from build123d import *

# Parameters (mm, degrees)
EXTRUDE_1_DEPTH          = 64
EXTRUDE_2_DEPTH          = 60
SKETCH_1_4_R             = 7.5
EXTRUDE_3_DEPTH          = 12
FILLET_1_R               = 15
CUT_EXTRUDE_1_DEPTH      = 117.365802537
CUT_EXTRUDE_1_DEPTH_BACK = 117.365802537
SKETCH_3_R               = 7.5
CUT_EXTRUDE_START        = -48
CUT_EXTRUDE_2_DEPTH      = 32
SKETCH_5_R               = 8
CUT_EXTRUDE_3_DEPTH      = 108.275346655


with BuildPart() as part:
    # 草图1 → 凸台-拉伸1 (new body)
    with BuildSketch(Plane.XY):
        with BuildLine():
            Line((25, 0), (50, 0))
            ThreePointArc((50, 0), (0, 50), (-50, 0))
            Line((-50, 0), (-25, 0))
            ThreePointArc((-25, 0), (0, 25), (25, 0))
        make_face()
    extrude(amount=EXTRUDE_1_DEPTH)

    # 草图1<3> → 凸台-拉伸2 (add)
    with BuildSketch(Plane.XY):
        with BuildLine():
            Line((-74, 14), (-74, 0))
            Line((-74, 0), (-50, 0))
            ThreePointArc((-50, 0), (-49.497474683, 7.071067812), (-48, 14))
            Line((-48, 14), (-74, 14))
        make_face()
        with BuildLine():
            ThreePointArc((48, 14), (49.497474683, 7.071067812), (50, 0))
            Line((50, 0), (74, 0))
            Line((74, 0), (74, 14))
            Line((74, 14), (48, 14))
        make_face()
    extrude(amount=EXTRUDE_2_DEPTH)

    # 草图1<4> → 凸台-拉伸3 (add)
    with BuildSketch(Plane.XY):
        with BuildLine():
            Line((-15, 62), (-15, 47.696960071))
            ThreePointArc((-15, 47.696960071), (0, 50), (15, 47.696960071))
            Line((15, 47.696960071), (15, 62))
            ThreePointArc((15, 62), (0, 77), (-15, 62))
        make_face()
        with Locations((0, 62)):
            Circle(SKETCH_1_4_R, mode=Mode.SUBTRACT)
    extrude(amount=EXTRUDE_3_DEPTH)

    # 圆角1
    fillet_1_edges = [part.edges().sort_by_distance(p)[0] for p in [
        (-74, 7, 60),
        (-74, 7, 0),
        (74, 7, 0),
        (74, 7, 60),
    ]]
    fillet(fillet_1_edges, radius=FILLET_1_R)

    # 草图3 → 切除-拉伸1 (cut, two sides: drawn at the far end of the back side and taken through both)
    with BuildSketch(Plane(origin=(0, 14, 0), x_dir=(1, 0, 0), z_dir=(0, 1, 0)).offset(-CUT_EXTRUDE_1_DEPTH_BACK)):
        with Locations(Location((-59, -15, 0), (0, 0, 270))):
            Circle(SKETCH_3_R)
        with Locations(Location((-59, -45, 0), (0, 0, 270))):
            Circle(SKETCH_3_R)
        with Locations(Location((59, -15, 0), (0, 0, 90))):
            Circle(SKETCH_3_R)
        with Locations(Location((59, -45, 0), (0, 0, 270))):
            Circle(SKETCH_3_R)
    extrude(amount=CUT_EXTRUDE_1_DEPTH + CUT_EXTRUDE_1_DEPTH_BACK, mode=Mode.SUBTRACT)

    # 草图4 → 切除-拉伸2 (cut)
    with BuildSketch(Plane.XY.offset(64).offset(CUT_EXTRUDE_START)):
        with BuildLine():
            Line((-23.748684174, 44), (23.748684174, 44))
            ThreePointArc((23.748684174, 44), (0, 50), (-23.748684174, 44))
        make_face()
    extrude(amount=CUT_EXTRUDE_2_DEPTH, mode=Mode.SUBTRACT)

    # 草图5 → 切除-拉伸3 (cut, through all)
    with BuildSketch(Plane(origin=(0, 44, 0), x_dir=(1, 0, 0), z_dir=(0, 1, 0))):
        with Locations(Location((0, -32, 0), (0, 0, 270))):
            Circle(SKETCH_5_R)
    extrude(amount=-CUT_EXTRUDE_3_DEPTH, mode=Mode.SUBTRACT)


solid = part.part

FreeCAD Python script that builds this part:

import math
import FreeCAD as App
import Part
import Sketcher
from FreeCAD import Vector
Q = App.Units.Quantity


def edges_at(feature, points):
    """Names of the edges that pass closest to the given points."""
    edges = feature.Shape.Edges
    near = lambda p: min(range(len(edges)), key=lambda i: edges[i].distToShape(Part.Vertex(*p))[0])
    return sorted({f"Edge{near(p) + 1}" for p in points})

doc = App.newDocument("Part")
body = doc.addObject("PartDesign::Body", "Body")

sketch1 = doc.addObject("Sketcher::SketchObject", "Sketch")
body.addObject(sketch1)
sketch1.AttachmentSupport = (doc.XY_Plane, [""])
sketch1.MapMode = "FlatFace"
sketch1.addGeometry([
    Part.LineSegment(Vector(25, 0, 0), Vector(50, 0, 0)),
    Part.ArcOfCircle(Part.Circle(Vector(0, 0, 0), Vector(0, 0, 1), 50), math.radians(0), math.radians(180)),
    Part.LineSegment(Vector(-50, 0, 0), Vector(-25, 0, 0)),
    Part.ArcOfCircle(Part.Circle(Vector(0, 0, 0), Vector(0, 0, 1), 25), math.radians(0), math.radians(180)),
], False)
sketch1.addConstraint([
    Sketcher.Constraint("Coincident", 0, 2, 1, 1),
    Sketcher.Constraint("Coincident", 1, 2, 2, 1),
    Sketcher.Constraint("Coincident", 2, 2, 3, 2),
    Sketcher.Constraint("Coincident", 3, 1, 0, 1),
    Sketcher.Constraint("Horizontal", 0),
    Sketcher.Constraint("Horizontal", 2),
    Sketcher.Constraint("Coincident", 1, 3, -1, 1),
    Sketcher.Constraint("Coincident", 3, 3, -1, 1),
    Sketcher.Constraint("PointOnObject", 0, 2, -1),
    Sketcher.Constraint("PointOnObject", 1, 2, -1),
    Sketcher.Constraint("Radius", 1, Q("50 mm")),
    Sketcher.Constraint("Radius", 3, Q("25 mm")),
])
pad1 = doc.addObject("PartDesign::Pad", "Pad")
body.addObject(pad1)
pad1.Profile = sketch1
pad1.Length = 64

sketch2 = doc.addObject("Sketcher::SketchObject", "Sketch001")
body.addObject(sketch2)
sketch2.AttachmentSupport = (doc.XY_Plane, [""])
sketch2.MapMode = "FlatFace"
sketch2.addGeometry([
    Part.LineSegment(Vector(-74, 14, 0), Vector(-74, 0, 0)),
    Part.LineSegment(Vector(-74, 0, 0), Vector(-50, 0, 0)),
    Part.ArcOfCircle(Part.Circle(Vector(0, 0, 0), Vector(0, 0, 1), 50), math.radians(163.739795), math.radians(180)),
    Part.LineSegment(Vector(-48, 14, 0), Vector(-74, 14, 0)),
    Part.ArcOfCircle(Part.Circle(Vector(0, 0, 0), Vector(0, 0, 1), 50), math.radians(0), math.radians(16.260205)),
    Part.LineSegment(Vector(50, 0, 0), Vector(74, 0, 0)),
    Part.LineSegment(Vector(74, 0, 0), Vector(74, 14, 0)),
    Part.LineSegment(Vector(74, 14, 0), Vector(48, 14, 0)),
], False)
sketch2.addConstraint([
    Sketcher.Constraint("Coincident", 0, 2, 1, 1),
    Sketcher.Constraint("Coincident", 1, 2, 2, 2),
    Sketcher.Constraint("Coincident", 2, 1, 3, 1),
    Sketcher.Constraint("Coincident", 3, 2, 0, 1),
    Sketcher.Constraint("Coincident", 4, 1, 5, 1),
    Sketcher.Constraint("Coincident", 5, 2, 6, 1),
    Sketcher.Constraint("Coincident", 6, 2, 7, 1),
    Sketcher.Constraint("Coincident", 7, 2, 4, 2),
    Sketcher.Constraint("Vertical", 0),
    Sketcher.Constraint("Horizontal", 1),
    Sketcher.Constraint("Horizontal", 3),
    Sketcher.Constraint("Horizontal", 5),
    Sketcher.Constraint("Vertical", 6),
    Sketcher.Constraint("Horizontal", 7),
    Sketcher.Constraint("Coincident", 2, 3, -1, 1),
    Sketcher.Constraint("Coincident", 4, 3, -1, 1),
    Sketcher.Constraint("Equal", 2, 4),
    Sketcher.Constraint("Symmetric", 0, 2, 5, 2, -1, 1),
    Sketcher.Constraint("PointOnObject", 0, 2, -1),
    Sketcher.Constraint("Horizontal", 3, 2, 6, 2),
    Sketcher.Constraint("Radius", 2, Q("50 mm")),
    Sketcher.Constraint("DistanceX", 1, 1, 1, 2, Q("24 mm")),
    Sketcher.Constraint("DistanceX", 3, 2, 3, 1, Q("26 mm")),
])
pad2 = doc.addObject("PartDesign::Pad", "Pad001")
body.addObject(pad2)
pad2.Profile = sketch2
pad2.Length = 60

sketch3 = doc.addObject("Sketcher::SketchObject", "Sketch002")
body.addObject(sketch3)
sketch3.AttachmentSupport = (doc.XY_Plane, [""])
sketch3.MapMode = "FlatFace"
sketch3.addGeometry([
    Part.LineSegment(Vector(-15, 62, 0), Vector(-15, 47.69696, 0)),
    Part.ArcOfCircle(Part.Circle(Vector(0, 0, 0), Vector(0, 0, 1), 50), math.radians(72.542397), math.radians(107.457603)),
    Part.LineSegment(Vector(15, 47.69696, 0), Vector(15, 62, 0)),
    Part.ArcOfCircle(Part.Circle(Vector(0, 62, 0), Vector(0, 0, 1), 15), math.radians(0), math.radians(180)),
    Part.Circle(Vector(0, 62, 0), Vector(0, 0, 1), 7.5),
], False)
sketch3.addConstraint([
    Sketcher.Constraint("Coincident", 0, 2, 1, 2),
    Sketcher.Constraint("Coincident", 1, 1, 2, 1),
    Sketcher.Constraint("Tangent", 2, 2, 3, 1),
    Sketcher.Constraint("Tangent", 3, 2, 0, 1),
    Sketcher.Constraint("Vertical", 0),
    Sketcher.Constraint("Vertical", 2),
    Sketcher.Constraint("Coincident", 1, 3, -1, 1),
    Sketcher.Constraint("Coincident", 4, 3, 3, 3),
    Sketcher.Constraint("PointOnObject", 3, 3, -2),
    Sketcher.Constraint("Diameter", 4, Q("15 mm")),
    Sketcher.Constraint("Radius", 1, Q("50 mm")),
    Sketcher.Constraint("Radius", 3, Q("15 mm")),
    Sketcher.Constraint("DistanceY", -1, 1, 3, 3, Q("62 mm")),
])
pad3 = doc.addObject("PartDesign::Pad", "Pad002")
body.addObject(pad3)
pad3.Profile = sketch3
pad3.Length = 12
doc.recompute()

fillet = doc.addObject("PartDesign::Fillet", "Fillet")
body.addObject(fillet)
fillet.Base = (pad3, edges_at(pad3, [
    (-74, 7, 60),
    (-74, 7, 0),
    (74, 7, 0),
    (74, 7, 60),
]))
fillet.Radius = 15

sketch4 = doc.addObject("Sketcher::SketchObject", "Sketch003")
body.addObject(sketch4)
sketch4.AttachmentSupport = (doc.XZ_Plane, [""])
sketch4.MapMode = "FlatFace"
sketch4.AttachmentOffset = App.Placement(Vector(0, 0, -14), App.Rotation())
sketch4.addGeometry([
    Part.Circle(Vector(-59, 15, 0), Vector(0, 0, 1), 7.5),
    Part.Circle(Vector(-59, 45, 0), Vector(0, 0, 1), 7.5),
    Part.Circle(Vector(59, 15, 0), Vector(0, 0, 1), 7.5),
    Part.Circle(Vector(59, 45, 0), Vector(0, 0, 1), 7.5),
], False)
sketch4.addConstraint([
    Sketcher.Constraint("Equal", 0, 1),
    Sketcher.Constraint("Equal", 1, 2),
    Sketcher.Constraint("Equal", 2, 3),
    Sketcher.Constraint("Symmetric", 0, 3, 2, 3, -2),
    Sketcher.Constraint("Symmetric", 1, 3, 3, 3, -2),
    Sketcher.Constraint("Vertical", 0, 3, 1, 3),
    Sketcher.Constraint("Diameter", 0, Q("15 mm")),
    Sketcher.Constraint("DistanceX", 0, 3, -1, 1, Q("59 mm")),
    Sketcher.Constraint("DistanceY", -1, 1, 0, 3, Q("15 mm")),
    Sketcher.Constraint("DistanceY", -1, 1, 1, 3, Q("45 mm")),
])
pocket1 = doc.addObject("PartDesign::Pocket", "Pocket")
body.addObject(pocket1)
pocket1.Profile = sketch4
pocket1.Type = "ThroughAll"
pocket1.Midplane = True

sketch5 = doc.addObject("Sketcher::SketchObject", "Sketch004")
body.addObject(sketch5)
sketch5.AttachmentSupport = (doc.XY_Plane, [""])
sketch5.MapMode = "FlatFace"
sketch5.AttachmentOffset = App.Placement(Vector(0, 0, 16), App.Rotation())
sketch5.addGeometry([
    Part.LineSegment(Vector(-23.748684, 44, 0), Vector(23.748684, 44, 0)),
    Part.ArcOfCircle(Part.Circle(Vector(0, 0, 0), Vector(0, 0, 1), 50), math.radians(61.642363), math.radians(118.357637)),
], False)
sketch5.addConstraint([
    Sketcher.Constraint("Coincident", 0, 1, 1, 2),
    Sketcher.Constraint("Coincident", 1, 1, 0, 2),
    Sketcher.Constraint("Horizontal", 0),
    Sketcher.Constraint("Coincident", 1, 3, -1, 1),
    Sketcher.Constraint("Radius", 1, Q("50 mm")),
    Sketcher.Constraint("DistanceY", -1, 1, 0, 1, Q("44 mm")),
])
pocket2 = doc.addObject("PartDesign::Pocket", "Pocket001")
body.addObject(pocket2)
pocket2.Profile = sketch5
pocket2.Length = 32
pocket2.Reversed = True

sketch6 = doc.addObject("Sketcher::SketchObject", "Sketch005")
body.addObject(sketch6)
sketch6.AttachmentSupport = (doc.XZ_Plane, [""])
sketch6.MapMode = "FlatFace"
sketch6.AttachmentOffset = App.Placement(Vector(0, 0, -44), App.Rotation())
sketch6.addGeometry(Part.Circle(Vector(0, 32, 0), Vector(0, 0, 1), 8), False)
sketch6.addConstraint([
    Sketcher.Constraint("PointOnObject", 0, 3, -2),
    Sketcher.Constraint("Diameter", 0, Q("16 mm")),
    Sketcher.Constraint("DistanceY", -1, 1, 0, 3, Q("32 mm")),
])
pocket3 = doc.addObject("PartDesign::Pocket", "Pocket002")
body.addObject(pocket3)
pocket3.Profile = sketch6
pocket3.Type = "ThroughAll"
pocket3.Reversed = True

doc.recompute()
